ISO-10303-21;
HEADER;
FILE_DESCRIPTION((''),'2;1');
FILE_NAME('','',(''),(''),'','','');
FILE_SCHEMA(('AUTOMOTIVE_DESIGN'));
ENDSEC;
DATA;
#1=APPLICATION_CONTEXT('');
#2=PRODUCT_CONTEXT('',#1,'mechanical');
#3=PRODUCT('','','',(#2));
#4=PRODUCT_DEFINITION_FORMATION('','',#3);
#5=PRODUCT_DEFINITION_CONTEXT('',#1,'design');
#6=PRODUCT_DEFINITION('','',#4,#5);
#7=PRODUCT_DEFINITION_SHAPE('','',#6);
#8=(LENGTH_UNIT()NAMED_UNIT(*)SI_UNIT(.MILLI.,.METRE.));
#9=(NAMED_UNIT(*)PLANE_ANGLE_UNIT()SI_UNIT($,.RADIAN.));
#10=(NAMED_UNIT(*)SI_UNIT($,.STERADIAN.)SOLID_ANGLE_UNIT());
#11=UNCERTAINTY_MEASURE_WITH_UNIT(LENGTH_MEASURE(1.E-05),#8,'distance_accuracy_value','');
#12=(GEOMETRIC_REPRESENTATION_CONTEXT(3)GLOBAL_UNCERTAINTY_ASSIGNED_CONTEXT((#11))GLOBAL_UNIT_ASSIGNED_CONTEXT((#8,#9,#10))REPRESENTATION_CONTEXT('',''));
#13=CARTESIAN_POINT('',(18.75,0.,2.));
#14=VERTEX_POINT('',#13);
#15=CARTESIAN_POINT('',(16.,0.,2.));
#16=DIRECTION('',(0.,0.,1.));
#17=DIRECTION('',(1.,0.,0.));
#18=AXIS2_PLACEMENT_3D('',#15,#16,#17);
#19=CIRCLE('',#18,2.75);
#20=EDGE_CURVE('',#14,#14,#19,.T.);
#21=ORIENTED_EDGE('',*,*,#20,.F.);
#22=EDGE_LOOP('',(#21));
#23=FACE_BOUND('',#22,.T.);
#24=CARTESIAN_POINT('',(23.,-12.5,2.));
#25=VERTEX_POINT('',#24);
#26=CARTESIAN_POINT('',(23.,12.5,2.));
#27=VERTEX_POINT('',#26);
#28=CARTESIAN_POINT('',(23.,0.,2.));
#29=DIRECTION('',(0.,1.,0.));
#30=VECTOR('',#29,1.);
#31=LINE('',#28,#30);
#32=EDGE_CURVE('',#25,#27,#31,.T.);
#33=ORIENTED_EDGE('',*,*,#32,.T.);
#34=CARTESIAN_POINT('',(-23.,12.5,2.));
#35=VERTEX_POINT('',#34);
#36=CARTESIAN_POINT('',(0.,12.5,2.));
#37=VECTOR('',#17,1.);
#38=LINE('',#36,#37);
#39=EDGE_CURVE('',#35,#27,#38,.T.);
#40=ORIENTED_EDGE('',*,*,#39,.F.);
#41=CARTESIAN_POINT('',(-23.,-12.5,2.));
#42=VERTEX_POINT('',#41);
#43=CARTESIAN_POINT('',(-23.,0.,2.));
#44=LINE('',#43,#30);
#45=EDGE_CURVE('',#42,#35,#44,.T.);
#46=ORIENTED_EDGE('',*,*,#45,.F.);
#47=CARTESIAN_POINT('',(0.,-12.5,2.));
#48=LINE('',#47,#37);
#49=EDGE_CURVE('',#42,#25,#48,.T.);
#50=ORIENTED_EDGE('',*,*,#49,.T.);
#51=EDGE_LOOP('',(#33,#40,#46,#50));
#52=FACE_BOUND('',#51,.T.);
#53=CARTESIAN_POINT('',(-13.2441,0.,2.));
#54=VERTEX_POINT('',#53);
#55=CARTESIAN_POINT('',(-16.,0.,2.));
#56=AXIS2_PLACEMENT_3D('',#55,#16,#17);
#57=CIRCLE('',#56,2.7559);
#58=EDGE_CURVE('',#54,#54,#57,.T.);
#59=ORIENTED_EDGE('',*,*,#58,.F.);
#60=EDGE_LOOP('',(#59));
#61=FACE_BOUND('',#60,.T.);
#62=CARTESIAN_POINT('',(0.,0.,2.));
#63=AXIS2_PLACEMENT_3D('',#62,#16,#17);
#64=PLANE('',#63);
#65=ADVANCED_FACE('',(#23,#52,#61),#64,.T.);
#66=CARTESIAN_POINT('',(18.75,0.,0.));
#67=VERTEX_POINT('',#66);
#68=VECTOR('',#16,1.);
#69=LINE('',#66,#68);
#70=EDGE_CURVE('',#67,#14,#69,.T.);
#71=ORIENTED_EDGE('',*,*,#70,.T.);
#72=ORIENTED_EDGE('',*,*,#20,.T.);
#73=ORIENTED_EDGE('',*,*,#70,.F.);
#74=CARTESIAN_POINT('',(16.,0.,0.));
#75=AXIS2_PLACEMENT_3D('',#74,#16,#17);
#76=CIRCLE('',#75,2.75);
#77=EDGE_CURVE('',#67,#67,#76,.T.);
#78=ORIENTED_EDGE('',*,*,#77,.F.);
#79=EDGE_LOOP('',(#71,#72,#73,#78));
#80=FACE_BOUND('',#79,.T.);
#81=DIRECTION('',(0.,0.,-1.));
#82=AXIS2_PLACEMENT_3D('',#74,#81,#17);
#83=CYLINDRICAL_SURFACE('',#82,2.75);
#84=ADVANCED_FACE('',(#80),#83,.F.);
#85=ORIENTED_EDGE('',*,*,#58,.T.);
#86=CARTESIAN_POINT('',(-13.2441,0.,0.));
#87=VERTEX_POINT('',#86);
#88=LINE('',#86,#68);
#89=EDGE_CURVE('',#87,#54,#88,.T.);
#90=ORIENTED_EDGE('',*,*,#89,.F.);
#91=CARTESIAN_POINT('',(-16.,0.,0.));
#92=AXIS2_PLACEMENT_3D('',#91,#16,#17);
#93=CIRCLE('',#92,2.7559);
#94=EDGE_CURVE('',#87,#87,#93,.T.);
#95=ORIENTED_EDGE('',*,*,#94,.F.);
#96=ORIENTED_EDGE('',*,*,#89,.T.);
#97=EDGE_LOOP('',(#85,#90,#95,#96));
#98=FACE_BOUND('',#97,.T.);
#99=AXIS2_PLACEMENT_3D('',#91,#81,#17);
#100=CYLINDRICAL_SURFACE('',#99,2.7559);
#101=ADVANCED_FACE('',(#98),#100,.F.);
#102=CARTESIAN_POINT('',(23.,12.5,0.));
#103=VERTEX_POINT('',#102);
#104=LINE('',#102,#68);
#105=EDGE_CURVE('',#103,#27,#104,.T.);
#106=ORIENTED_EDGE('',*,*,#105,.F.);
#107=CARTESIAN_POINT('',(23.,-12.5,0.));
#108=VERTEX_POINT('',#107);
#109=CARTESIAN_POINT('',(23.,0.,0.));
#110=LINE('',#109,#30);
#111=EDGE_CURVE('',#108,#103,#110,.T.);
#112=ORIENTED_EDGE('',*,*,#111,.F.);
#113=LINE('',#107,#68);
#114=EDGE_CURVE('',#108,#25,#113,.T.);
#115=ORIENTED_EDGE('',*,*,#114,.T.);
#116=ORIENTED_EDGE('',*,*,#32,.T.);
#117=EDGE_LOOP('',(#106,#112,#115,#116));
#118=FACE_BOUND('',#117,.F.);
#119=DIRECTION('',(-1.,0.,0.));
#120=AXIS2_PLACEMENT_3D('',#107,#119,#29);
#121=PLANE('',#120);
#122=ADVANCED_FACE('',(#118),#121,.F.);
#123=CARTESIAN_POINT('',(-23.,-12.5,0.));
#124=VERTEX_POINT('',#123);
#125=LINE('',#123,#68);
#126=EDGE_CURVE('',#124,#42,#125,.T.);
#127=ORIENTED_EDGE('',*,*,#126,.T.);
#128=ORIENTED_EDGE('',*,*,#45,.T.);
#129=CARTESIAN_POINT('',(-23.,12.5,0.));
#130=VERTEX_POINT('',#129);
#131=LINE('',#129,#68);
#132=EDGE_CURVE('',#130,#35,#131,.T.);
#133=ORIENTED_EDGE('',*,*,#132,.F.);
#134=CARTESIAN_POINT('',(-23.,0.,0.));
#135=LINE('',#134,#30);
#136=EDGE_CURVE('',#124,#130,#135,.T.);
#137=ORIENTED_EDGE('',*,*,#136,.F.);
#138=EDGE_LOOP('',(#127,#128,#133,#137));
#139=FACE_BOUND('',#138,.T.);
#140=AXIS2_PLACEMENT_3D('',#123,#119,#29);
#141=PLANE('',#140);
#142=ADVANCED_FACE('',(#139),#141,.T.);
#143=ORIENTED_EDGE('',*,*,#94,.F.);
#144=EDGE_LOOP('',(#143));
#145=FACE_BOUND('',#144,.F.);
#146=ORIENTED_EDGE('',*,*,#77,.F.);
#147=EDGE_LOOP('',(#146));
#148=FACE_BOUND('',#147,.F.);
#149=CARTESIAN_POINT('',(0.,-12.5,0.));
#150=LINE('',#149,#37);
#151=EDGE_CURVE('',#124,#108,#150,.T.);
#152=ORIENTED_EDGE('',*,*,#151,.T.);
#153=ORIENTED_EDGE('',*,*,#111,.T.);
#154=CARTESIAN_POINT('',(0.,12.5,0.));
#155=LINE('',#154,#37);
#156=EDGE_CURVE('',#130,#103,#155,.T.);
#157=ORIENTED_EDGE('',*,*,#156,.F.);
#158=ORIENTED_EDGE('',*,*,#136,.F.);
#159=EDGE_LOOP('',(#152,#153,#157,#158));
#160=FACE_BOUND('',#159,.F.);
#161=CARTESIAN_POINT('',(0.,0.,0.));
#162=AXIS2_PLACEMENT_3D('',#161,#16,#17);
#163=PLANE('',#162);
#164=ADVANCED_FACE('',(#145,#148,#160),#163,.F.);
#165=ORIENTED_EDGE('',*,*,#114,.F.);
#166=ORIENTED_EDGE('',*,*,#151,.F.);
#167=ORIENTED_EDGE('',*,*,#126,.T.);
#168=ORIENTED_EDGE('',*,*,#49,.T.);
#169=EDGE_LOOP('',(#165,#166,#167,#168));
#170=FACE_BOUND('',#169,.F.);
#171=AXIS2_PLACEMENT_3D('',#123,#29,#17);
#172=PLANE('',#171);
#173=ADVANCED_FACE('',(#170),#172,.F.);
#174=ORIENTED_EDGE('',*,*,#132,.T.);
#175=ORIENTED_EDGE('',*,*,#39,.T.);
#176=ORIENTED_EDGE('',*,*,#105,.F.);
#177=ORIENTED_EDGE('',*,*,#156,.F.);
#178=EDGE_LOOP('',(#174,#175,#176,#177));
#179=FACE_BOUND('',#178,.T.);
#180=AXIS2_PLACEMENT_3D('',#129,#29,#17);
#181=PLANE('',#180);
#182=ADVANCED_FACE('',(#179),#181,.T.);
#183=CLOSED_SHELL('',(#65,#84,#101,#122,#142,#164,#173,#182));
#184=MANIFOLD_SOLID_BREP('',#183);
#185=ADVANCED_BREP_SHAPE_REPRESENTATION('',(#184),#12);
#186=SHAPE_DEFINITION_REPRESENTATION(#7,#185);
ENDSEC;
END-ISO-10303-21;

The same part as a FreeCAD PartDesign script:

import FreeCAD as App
import Part
import Sketcher
Q = App.Units.Quantity


def add_polygon(sketch, points):
    """Adds a closed chain of lines whose ends are joined by coincident constraints."""
    first, n = sketch.GeometryCount, len(points)
    for a, b in zip(points, points[1:] + points[:1]):
        sketch.addGeometry(Part.LineSegment(App.Vector(*a, 0), App.Vector(*b, 0)), False)
    for i in range(n):
        sketch.addConstraint(Sketcher.Constraint("Coincident", first + i, 2, first + (i + 1) % n, 1))

doc = App.newDocument("Part")
params = doc.addObject("Spreadsheet::Sheet", "Params")
for row, (alias, value) in enumerate([
    ("sketch1_diameter", "5.5 mm"),
    ("sketch1_width", "46 mm"),
    ("sketch1_height", "25 mm"),
    ("pad1_length", "2 mm"),
], start=1):
    params.set(f"A{row}", alias)
    params.set(f"B{row}", "=" + value)
    params.setAlias(f"B{row}", alias)

body = doc.addObject("PartDesign::Body", "Body")

# Sketch on XY plane
sketch1 = body.newObject("Sketcher::SketchObject", "Sketch")
sketch1.AttachmentSupport = (doc.getObject("XY_Plane"), [""])
sketch1.MapMode = "FlatFace"
add_polygon(sketch1, [(-23, 12.5), (-23, -12.5), (23, -12.5), (23, 12.5)])  # lines 0-3
sketch1.addGeometry(Part.Circle(App.Vector(-16, 0, 0), App.Vector(0, 0, 1), 2.7559), False)  # 4
sketch1.addGeometry(Part.Circle(App.Vector(16, 0, 0), App.Vector(0, 0, 1), 2.75), False)  # 5
sketch1.addConstraint([
    Sketcher.Constraint("Vertical", 0),
    Sketcher.Constraint("Horizontal", 1),
    Sketcher.Constraint("Vertical", 2),
    Sketcher.Constraint("Horizontal", 3),
    Sketcher.Constraint("Symmetric", 4, 3, 5, 3, -1, 1),
    Sketcher.Constraint("Symmetric", 0, 2, 2, 2, -1, 1),
    Sketcher.Constraint("PointOnObject", 4, 3, -1),
    Sketcher.Constraint("Diameter", 5, Q("5.5 mm")),
    Sketcher.Constraint("DistanceX", 1, 1, 1, 2, Q("46 mm")),
    Sketcher.Constraint("DistanceY", 0, 2, 0, 1, Q("25 mm")),
    Sketcher.Constraint("DistanceX", 4, 3, -1, 1, Q("16 mm")),
    Sketcher.Constraint("Diameter", 4, Q("5.5118 mm")),
])
sketch1.setExpression("Constraints[11]", "Params.sketch1_diameter")
sketch1.setExpression("Constraints[12]", "Params.sketch1_width")
sketch1.setExpression("Constraints[13]", "Params.sketch1_height")
pad1 = body.newObject("PartDesign::Pad", "Pad")
pad1.Profile = sketch1
pad1.setExpression("Length", "Params.pad1_length")

doc.recompute()
